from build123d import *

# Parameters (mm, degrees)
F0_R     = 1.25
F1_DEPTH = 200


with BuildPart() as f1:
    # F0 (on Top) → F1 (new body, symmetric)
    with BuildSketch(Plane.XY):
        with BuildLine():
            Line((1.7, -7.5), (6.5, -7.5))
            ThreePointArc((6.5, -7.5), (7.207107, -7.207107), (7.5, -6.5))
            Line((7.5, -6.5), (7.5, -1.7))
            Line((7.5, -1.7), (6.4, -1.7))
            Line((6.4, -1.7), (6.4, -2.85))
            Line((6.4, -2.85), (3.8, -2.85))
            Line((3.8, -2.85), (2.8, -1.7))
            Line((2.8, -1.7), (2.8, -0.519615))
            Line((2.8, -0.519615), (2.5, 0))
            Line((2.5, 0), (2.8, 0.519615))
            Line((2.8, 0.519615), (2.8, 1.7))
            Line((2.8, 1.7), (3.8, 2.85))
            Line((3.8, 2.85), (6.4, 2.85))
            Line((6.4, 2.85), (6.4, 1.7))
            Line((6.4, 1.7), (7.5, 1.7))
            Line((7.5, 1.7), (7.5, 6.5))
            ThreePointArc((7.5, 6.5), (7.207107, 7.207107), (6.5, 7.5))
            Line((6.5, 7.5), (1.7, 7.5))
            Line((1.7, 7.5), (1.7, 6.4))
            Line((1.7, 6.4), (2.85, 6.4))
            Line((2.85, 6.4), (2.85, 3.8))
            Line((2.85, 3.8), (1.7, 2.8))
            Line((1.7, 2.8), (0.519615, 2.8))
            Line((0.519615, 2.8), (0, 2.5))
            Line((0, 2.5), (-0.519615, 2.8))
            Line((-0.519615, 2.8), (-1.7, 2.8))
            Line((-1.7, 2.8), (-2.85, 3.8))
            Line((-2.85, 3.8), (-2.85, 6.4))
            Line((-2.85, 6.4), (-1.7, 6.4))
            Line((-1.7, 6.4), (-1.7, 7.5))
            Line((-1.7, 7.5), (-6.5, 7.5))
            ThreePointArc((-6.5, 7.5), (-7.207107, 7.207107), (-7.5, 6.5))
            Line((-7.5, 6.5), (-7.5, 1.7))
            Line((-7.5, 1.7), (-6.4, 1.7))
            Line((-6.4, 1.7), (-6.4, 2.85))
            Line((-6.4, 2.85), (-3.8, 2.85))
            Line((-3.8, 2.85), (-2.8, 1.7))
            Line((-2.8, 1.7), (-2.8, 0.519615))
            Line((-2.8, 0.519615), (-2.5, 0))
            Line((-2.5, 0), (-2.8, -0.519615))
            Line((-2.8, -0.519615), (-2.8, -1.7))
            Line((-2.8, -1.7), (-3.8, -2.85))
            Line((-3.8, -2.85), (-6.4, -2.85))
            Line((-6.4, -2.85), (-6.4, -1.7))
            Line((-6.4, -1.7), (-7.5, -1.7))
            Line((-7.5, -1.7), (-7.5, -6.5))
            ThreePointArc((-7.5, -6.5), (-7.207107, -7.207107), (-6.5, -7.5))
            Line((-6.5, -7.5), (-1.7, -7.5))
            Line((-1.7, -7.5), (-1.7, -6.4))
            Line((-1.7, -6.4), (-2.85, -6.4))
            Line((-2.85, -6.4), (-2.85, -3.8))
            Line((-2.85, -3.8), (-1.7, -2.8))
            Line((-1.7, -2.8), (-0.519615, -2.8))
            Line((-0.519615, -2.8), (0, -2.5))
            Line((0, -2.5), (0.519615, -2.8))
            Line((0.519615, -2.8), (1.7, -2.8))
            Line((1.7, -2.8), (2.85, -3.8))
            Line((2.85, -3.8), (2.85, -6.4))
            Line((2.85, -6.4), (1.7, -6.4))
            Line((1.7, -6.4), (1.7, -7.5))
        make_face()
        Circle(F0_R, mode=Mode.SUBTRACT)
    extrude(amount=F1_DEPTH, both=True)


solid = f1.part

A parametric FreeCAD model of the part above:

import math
import FreeCAD as App
import Part
import Sketcher

V = App.Vector
Q = App.Units.Quantity

doc = App.newDocument("Part")
params = doc.addObject("Spreadsheet::Sheet", "Params")
for row, (alias, value) in enumerate([
    ("sketch1_radius", "0.999999 mm"),
    ("sketch1_diameter", "2.5 mm"),
    ("sketch1_width", "4.8 mm"),
    ("sketch1_width2", "1.1 mm"),
    ("sketch1_width3", "2.6 mm"),
    ("pad1_length", "400 mm"),
], start=1):
    params.set(f"A{row}", alias)
    params.set(f"B{row}", "=" + value)
    params.setAlias(f"B{row}", alias)

body = doc.addObject("PartDesign::Body", "Body")

# Sketch on XY plane
sketch1 = body.newObject("Sketcher::SketchObject", "Sketch")
sketch1.AttachmentSupport = (doc.getObject("XY_Plane"), [""])
sketch1.MapMode = "FlatFace"
sketch1.addGeometry(Part.LineSegment(V(1.7, -7.5, 0), V(6.5, -7.5, 0)), False)
sketch1.addGeometry(Part.ArcOfCircle(Part.Circle(V(6.5, -6.5, 0), V(0, 0, 1), 1), math.radians(-90), math.radians(0)), False)
sketch1.addGeometry(Part.LineSegment(V(7.5, -6.5, 0), V(7.5, -1.7, 0)), False)
sketch1.addGeometry(Part.LineSegment(V(7.5, -1.7, 0), V(6.4, -1.7, 0)), False)
sketch1.addGeometry(Part.LineSegment(V(6.4, -1.7, 0), V(6.4, -2.9, 0)), False)
sketch1.addGeometry(Part.LineSegment(V(6.4, -2.9, 0), V(3.8, -2.9, 0)), False)
sketch1.addGeometry(Part.LineSegment(V(3.8, -2.9, 0), V(2.8, -1.7, 0)), False)
sketch1.addGeometry(Part.LineSegment(V(2.8, -1.7, 0), V(2.8, -0.5, 0)), False)
sketch1.addGeometry(Part.LineSegment(V(2.8, -0.5, 0), V(2.5, 0, 0)), False)
sketch1.addGeometry(Part.LineSegment(V(2.5, 0, 0), V(2.8, 0.5, 0)), False)
sketch1.addGeometry(Part.LineSegment(V(2.8, 0.5, 0), V(2.8, 1.7, 0)), False)
sketch1.addGeometry(Part.LineSegment(V(2.8, 1.7, 0), V(3.8, 2.9, 0)), False)
sketch1.addGeometry(Part.LineSegment(V(3.8, 2.9, 0), V(6.4, 2.9, 0)), False)
sketch1.addGeometry(Part.LineSegment(V(6.4, 2.9, 0), V(6.4, 1.7, 0)), False)
sketch1.addGeometry(Part.LineSegment(V(6.4, 1.7, 0), V(7.5, 1.7, 0)), False)
sketch1.addGeometry(Part.LineSegment(V(7.5, 1.7, 0), V(7.5, 6.5, 0)), False)
sketch1.addGeometry(Part.ArcOfCircle(Part.Circle(V(6.5, 6.5, 0), V(0, 0, 1), 1), math.radians(0), math.radians(90)), False)
sketch1.addGeometry(Part.LineSegment(V(6.5, 7.5, 0), V(1.7, 7.5, 0)), False)
sketch1.addGeometry(Part.LineSegment(V(1.7, 7.5, 0), V(1.7, 6.4, 0)), False)
sketch1.addGeometry(Part.LineSegment(V(1.7, 6.4, 0), V(2.9, 6.4, 0)), False)
sketch1.addGeometry(Part.LineSegment(V(2.9, 6.4, 0), V(2.9, 3.8, 0)), False)
sketch1.addGeometry(Part.LineSegment(V(2.9, 3.8, 0), V(1.7, 2.8, 0)), False)
sketch1.addGeometry(Part.LineSegment(V(1.7, 2.8, 0), V(0.5, 2.8, 0)), False)
sketch1.addGeometry(Part.LineSegment(V(0.5, 2.8, 0), V(0, 2.5, 0)), False)
sketch1.addGeometry(Part.LineSegment(V(0, 2.5, 0), V(-0.5, 2.8, 0)), False)
sketch1.addGeometry(Part.LineSegment(V(-0.5, 2.8, 0), V(-1.7, 2.8, 0)), False)
sketch1.addGeometry(Part.LineSegment(V(-1.7, 2.8, 0), V(-2.9, 3.8, 0)), False)
sketch1.addGeometry(Part.LineSegment(V(-2.9, 3.8, 0), V(-2.9, 6.4, 0)), False)
sketch1.addGeometry(Part.LineSegment(V(-2.9, 6.4, 0), V(-1.7, 6.4, 0)), False)
sketch1.addGeometry(Part.LineSegment(V(-1.7, 6.4, 0), V(-1.7, 7.5, 0)), False)
sketch1.addGeometry(Part.LineSegment(V(-1.7, 7.5, 0), V(-6.5, 7.5, 0)), False)
sketch1.addGeometry(Part.ArcOfCircle(Part.Circle(V(-6.5, 6.5, 0), V(0, 0, 1), 1), math.radians(90), math.radians(180)), False)
sketch1.addGeometry(Part.LineSegment(V(-7.5, 6.5, 0), V(-7.5, 1.7, 0)), False)
sketch1.addGeometry(Part.LineSegment(V(-7.5, 1.7, 0), V(-6.4, 1.7, 0)), False)
sketch1.addGeometry(Part.LineSegment(V(-6.4, 1.7, 0), V(-6.4, 2.9, 0)), False)
sketch1.addGeometry(Part.LineSegment(V(-6.4, 2.9, 0), V(-3.8, 2.9, 0)), False)
sketch1.addGeometry(Part.LineSegment(V(-3.8, 2.9, 0), V(-2.8, 1.7, 0)), False)
sketch1.addGeometry(Part.LineSegment(V(-2.8, 1.7, 0), V(-2.8, 0.5, 0)), False)
sketch1.addGeometry(Part.LineSegment(V(-2.8, 0.5, 0), V(-2.5, 0, 0)), False)
sketch1.addGeometry(Part.LineSegment(V(-2.5, 0, 0), V(-2.8, -0.5, 0)), False)
sketch1.addGeometry(Part.LineSegment(V(-2.8, -0.5, 0), V(-2.8, -1.7, 0)), False)
sketch1.addGeometry(Part.LineSegment(V(-2.8, -1.7, 0), V(-3.8, -2.9, 0)), False)
sketch1.addGeometry(Part.LineSegment(V(-3.8, -2.9, 0), V(-6.4, -2.9, 0)), False)
sketch1.addGeometry(Part.LineSegment(V(-6.4, -2.9, 0), V(-6.4, -1.7, 0)), False)
sketch1.addGeometry(Part.LineSegment(V(-6.4, -1.7, 0), V(-7.5, -1.7, 0)), False)
sketch1.addGeometry(Part.LineSegment(V(-7.5, -1.7, 0), V(-7.5, -6.5, 0)), False)
sketch1.addGeometry(Part.ArcOfCircle(Part.Circle(V(-6.5, -6.5, 0), V(0, 0, 1), 1), math.radians(180), math.radians(270)), False)
sketch1.addGeometry(Part.LineSegment(V(-6.5, -7.5, 0), V(-1.7, -7.5, 0)), False)
sketch1.addGeometry(Part.LineSegment(V(-1.7, -7.5, 0), V(-1.7, -6.4, 0)), False)
sketch1.addGeometry(Part.LineSegment(V(-1.7, -6.4, 0), V(-2.9, -6.4, 0)), False)
sketch1.addGeometry(Part.LineSegment(V(-2.9, -6.4, 0), V(-2.9, -3.8, 0)), False)
sketch1.addGeometry(Part.LineSegment(V(-2.9, -3.8, 0), V(-1.7, -2.8, 0)), False)
sketch1.addGeometry(Part.LineSegment(V(-1.7, -2.8, 0), V(-0.5, -2.8, 0)), False)
sketch1.addGeometry(Part.LineSegment(V(-0.5, -2.8, 0), V(0, -2.5, 0)), False)
sketch1.addGeometry(Part.LineSegment(V(0, -2.5, 0), V(0.5, -2.8, 0)), False)
sketch1.addGeometry(Part.LineSegment(V(0.5, -2.8, 0), V(1.7, -2.8, 0)), False)
sketch1.addGeometry(Part.LineSegment(V(1.7, -2.8, 0), V(2.9, -3.8, 0)), False)
sketch1.addGeometry(Part.LineSegment(V(2.9, -3.8, 0), V(2.9, -6.4, 0)), False)
sketch1.addGeometry(Part.LineSegment(V(2.9, -6.4, 0), V(1.7, -6.4, 0)), False)
sketch1.addGeometry(Part.LineSegment(V(1.7, -6.4, 0), V(1.7, -7.5, 0)), False)
sketch1.addGeometry(Part.Circle(V(0, 0, 0), V(0, 0, 1), 1.2), False)
sketch1.addConstraint(Sketcher.Constraint("Tangent", 0, 2, 1, 1))
sketch1.addConstraint(Sketcher.Constraint("Tangent", 1, 2, 2, 1))
sketch1.addConstraint(Sketcher.Constraint("Coincident", 2, 2, 3, 1))
sketch1.addConstraint(Sketcher.Constraint("Coincident", 3, 2, 4, 1))
sketch1.addConstraint(Sketcher.Constraint("Coincident", 4, 2, 5, 1))
sketch1.addConstraint(Sketcher.Constraint("Coincident", 5, 2, 6, 1))
sketch1.addConstraint(Sketcher.Constraint("Coincident", 6, 2, 7, 1))
sketch1.addConstraint(Sketcher.Constraint("Coincident", 7, 2, 8, 1))
sketch1.addConstraint(Sketcher.Constraint("Coincident", 8, 2, 9, 1))
sketch1.addConstraint(Sketcher.Constraint("Coincident", 9, 2, 10, 1))
sketch1.addConstraint(Sketcher.Constraint("Coincident", 10, 2, 11, 1))
sketch1.addConstraint(Sketcher.Constraint("Coincident", 11, 2, 12, 1))
sketch1.addConstraint(Sketcher.Constraint("Coincident", 12, 2, 13, 1))
sketch1.addConstraint(Sketcher.Constraint("Coincident", 13, 2, 14, 1))
sketch1.addConstraint(Sketcher.Constraint("Coincident", 14, 2, 15, 1))
sketch1.addConstraint(Sketcher.Constraint("Tangent", 15, 2, 16, 1))
sketch1.addConstraint(Sketcher.Constraint("Tangent", 16, 2, 17, 1))
sketch1.addConstraint(Sketcher.Constraint("Coincident", 17, 2, 18, 1))
sketch1.addConstraint(Sketcher.Constraint("Coincident", 18, 2, 19, 1))
sketch1.addConstraint(Sketcher.Constraint("Coincident", 19, 2, 20, 1))
sketch1.addConstraint(Sketcher.Constraint("Coincident", 20, 2, 21, 1))
sketch1.addConstraint(Sketcher.Constraint("Coincident", 21, 2, 22, 1))
sketch1.addConstraint(Sketcher.Constraint("Coincident", 22, 2, 23, 1))
sketch1.addConstraint(Sketcher.Constraint("Coincident", 23, 2, 24, 1))
sketch1.addConstraint(Sketcher.Constraint("Coincident", 24, 2, 25, 1))
sketch1.addConstraint(Sketcher.Constraint("Coincident", 25, 2, 26, 1))
sketch1.addConstraint(Sketcher.Constraint("Coincident", 26, 2, 27, 1))
sketch1.addConstraint(Sketcher.Constraint("Coincident", 27, 2, 28, 1))
sketch1.addConstraint(Sketcher.Constraint("Coincident", 28, 2, 29, 1))
sketch1.addConstraint(Sketcher.Constraint("Coincident", 29, 2, 30, 1))
sketch1.addConstraint(Sketcher.Constraint("Tangent", 30, 2, 31, 1))
sketch1.addConstraint(Sketcher.Constraint("Tangent", 31, 2, 32, 1))
sketch1.addConstraint(Sketcher.Constraint("Coincident", 32, 2, 33, 1))
sketch1.addConstraint(Sketcher.Constraint("Coincident", 33, 2, 34, 1))
sketch1.addConstraint(Sketcher.Constraint("Coincident", 34, 2, 35, 1))
sketch1.addConstraint(Sketcher.Constraint("Coincident", 35, 2, 36, 1))
sketch1.addConstraint(Sketcher.Constraint("Coincident", 36, 2, 37, 1))
sketch1.addConstraint(Sketcher.Constraint("Coincident", 37, 2, 38, 1))
sketch1.addConstraint(Sketcher.Constraint("Coincident", 38, 2, 39, 1))
sketch1.addConstraint(Sketcher.Constraint("Coincident", 39, 2, 40, 1))
sketch1.addConstraint(Sketcher.Constraint("Coincident", 40, 2, 41, 1))
sketch1.addConstraint(Sketcher.Constraint("Coincident", 41, 2, 42, 1))
sketch1.addConstraint(Sketcher.Constraint("Coincident", 42, 2, 43, 1))
sketch1.addConstraint(Sketcher.Constraint("Coincident", 43, 2, 44, 1))
sketch1.addConstraint(Sketcher.Constraint("Coincident", 44, 2, 45, 1))
sketch1.addConstraint(Sketcher.Constraint("Tangent", 45, 2, 46, 1))
sketch1.addConstraint(Sketcher.Constraint("Tangent", 46, 2, 47, 1))
sketch1.addConstraint(Sketcher.Constraint("Coincident", 47, 2, 48, 1))
sketch1.addConstraint(Sketcher.Constraint("Coincident", 48, 2, 49, 1))
sketch1.addConstraint(Sketcher.Constraint("Coincident", 49, 2, 50, 1))
sketch1.addConstraint(Sketcher.Constraint("Coincident", 50, 2, 51, 1))
sketch1.addConstraint(Sketcher.Constraint("Coincident", 51, 2, 52, 1))
sketch1.addConstraint(Sketcher.Constraint("Coincident", 52, 2, 53, 1))
sketch1.addConstraint(Sketcher.Constraint("Coincident", 53, 2, 54, 1))
sketch1.addConstraint(Sketcher.Constraint("Coincident", 54, 2, 55, 1))
sketch1.addConstraint(Sketcher.Constraint("Coincident", 55, 2, 56, 1))
sketch1.addConstraint(Sketcher.Constraint("Coincident", 56, 2, 57, 1))
sketch1.addConstraint(Sketcher.Constraint("Coincident", 57, 2, 58, 1))
sketch1.addConstraint(Sketcher.Constraint("Coincident", 58, 2, 59, 1))
sketch1.addConstraint(Sketcher.Constraint("Coincident", 59, 2, 0, 1))
sketch1.addConstraint(Sketcher.Constraint("Horizontal", 0))
sketch1.addConstraint(Sketcher.Constraint("Vertical", 2))
sketch1.addConstraint(Sketcher.Constraint("Horizontal", 3))
sketch1.addConstraint(Sketcher.Constraint("Vertical", 4))
sketch1.addConstraint(Sketcher.Constraint("Horizontal", 5))
sketch1.addConstraint(Sketcher.Constraint("Vertical", 7))
sketch1.addConstraint(Sketcher.Constraint("Vertical", 10))
sketch1.addConstraint(Sketcher.Constraint("Horizontal", 12))
sketch1.addConstraint(Sketcher.Constraint("Vertical", 13))
sketch1.addConstraint(Sketcher.Constraint("Horizontal", 14))
sketch1.addConstraint(Sketcher.Constraint("Vertical", 15))
sketch1.addConstraint(Sketcher.Constraint("Horizontal", 17))
sketch1.addConstraint(Sketcher.Constraint("Vertical", 18))
sketch1.addConstraint(Sketcher.Constraint("Horizontal", 19))
sketch1.addConstraint(Sketcher.Constraint("Vertical", 20))
sketch1.addConstraint(Sketcher.Constraint("Horizontal", 22))
sketch1.addConstraint(Sketcher.Constraint("Horizontal", 25))
sketch1.addConstraint(Sketcher.Constraint("Vertical", 27))
sketch1.addConstraint(Sketcher.Constraint("Horizontal", 28))
sketch1.addConstraint(Sketcher.Constraint("Vertical", 29))
sketch1.addConstraint(Sketcher.Constraint("Horizontal", 30))
sketch1.addConstraint(Sketcher.Constraint("Vertical", 32))
sketch1.addConstraint(Sketcher.Constraint("Horizontal", 33))
sketch1.addConstraint(Sketcher.Constraint("Vertical", 34))
sketch1.addConstraint(Sketcher.Constraint("Horizontal", 35))
sketch1.addConstraint(Sketcher.Constraint("Vertical", 37))
sketch1.addConstraint(Sketcher.Constraint("Vertical", 40))
sketch1.addConstraint(Sketcher.Constraint("Horizontal", 42))
sketch1.addConstraint(Sketcher.Constraint("Vertical", 43))
sketch1.addConstraint(Sketcher.Constraint("Horizontal", 44))
sketch1.addConstraint(Sketcher.Constraint("Vertical", 45))
sketch1.addConstraint(Sketcher.Constraint("Horizontal", 47))
sketch1.addConstraint(Sketcher.Constraint("Vertical", 48))
sketch1.addConstraint(Sketcher.Constraint("Horizontal", 49))
sketch1.addConstraint(Sketcher.Constraint("Vertical", 50))
sketch1.addConstraint(Sketcher.Constraint("Horizontal", 52))
sketch1.addConstraint(Sketcher.Constraint("Horizontal", 55))
sketch1.addConstraint(Sketcher.Constraint("Vertical", 57))
sketch1.addConstraint(Sketcher.Constraint("Horizontal", 58))
sketch1.addConstraint(Sketcher.Constraint("Vertical", 59))
sketch1.addConstraint(Sketcher.Constraint("Coincident", 60, 3, -1, 1))
sketch1.addConstraint(Sketcher.Constraint("Equal", 1, 16))
sketch1.addConstraint(Sketcher.Constraint("Equal", 16, 31))
sketch1.addConstraint(Sketcher.Constraint("Equal", 31, 46))
sketch1.addConstraint(Sketcher.Constraint("Symmetric", 1, 3, 31, 3, -1, 1))
sketch1.addConstraint(Sketcher.Constraint("Symmetric", 16, 3, 46, 3, -1, 1))
sketch1.addConstraint(Sketcher.Constraint("Symmetric", 3, 2, 33, 2, -1, 1))
sketch1.addConstraint(Sketcher.Constraint("Symmetric", 5, 2, 35, 2, -1, 1))
sketch1.addConstraint(Sketcher.Constraint("Symmetric", 6, 2, 36, 2, -1, 1))
sketch1.addConstraint(Sketcher.Constraint("Symmetric", 8, 2, 38, 2, -1, 1))
sketch1.addConstraint(Sketcher.Constraint("Symmetric", 9, 2, 39, 2, -1, 1))
sketch1.addConstraint(Sketcher.Constraint("Symmetric", 11, 2, 41, 2, -1, 1))
sketch1.addConstraint(Sketcher.Constraint("Symmetric", 13, 2, 43, 2, -1, 1))
sketch1.addConstraint(Sketcher.Constraint("Symmetric", 18, 2, 48, 2, -1, 1))
sketch1.addConstraint(Sketcher.Constraint("Symmetric", 20, 2, 50, 2, -1, 1))
sketch1.addConstraint(Sketcher.Constraint("Symmetric", 21, 2, 51, 2, -1, 1))
sketch1.addConstraint(Sketcher.Constraint("Symmetric", 23, 2, 53, 2, -1, 1))
sketch1.addConstraint(Sketcher.Constraint("Symmetric", 24, 2, 54, 2, -1, 1))
sketch1.addConstraint(Sketcher.Constraint("Symmetric", 26, 2, 56, 2, -1, 1))
sketch1.addConstraint(Sketcher.Constraint("Symmetric", 28, 2, 58, 2, -1, 1))
sketch1.addConstraint(Sketcher.Constraint("Symmetric", 16, 3, 31, 3, -2))
sketch1.addConstraint(Sketcher.Constraint("Symmetric", 22, 2, 24, 2, -2))
sketch1.addConstraint(Sketcher.Constraint("Symmetric", 20, 2, 26, 2, -2))
sketch1.addConstraint(Sketcher.Constraint("Symmetric", 18, 2, 28, 2, -2))
sketch1.addConstraint(Sketcher.Constraint("Symmetric", 13, 2, 33, 2, -2))
sketch1.addConstraint(Sketcher.Constraint("Symmetric", 11, 2, 35, 2, -2))
sketch1.addConstraint(Sketcher.Constraint("Symmetric", 10, 2, 36, 2, -2))
sketch1.addConstraint(Sketcher.Constraint("PointOnObject", 8, 2, -1))
sketch1.addConstraint(Sketcher.Constraint("PointOnObject", 23, 2, -2))
sketch1.addConstraint(Sketcher.Constraint("Perpendicular", 6, 21))
sketch1.addConstraint(Sketcher.Constraint("Perpendicular", 8, 23))
sketch1.addConstraint(Sketcher.Constraint("Perpendicular", 9, 24))
sketch1.addConstraint(Sketcher.Constraint("Perpendicular", 11, 26))
sketch1.addConstraint(Sketcher.Constraint("Perpendicular", 23, 38))
sketch1.addConstraint(Sketcher.Constraint("Perpendicular", 26, 41))
sketch1.addConstraint(Sketcher.Constraint("Perpendicular", 38, 53))
sketch1.addConstraint(Sketcher.Constraint("Perpendicular", 41, 56))
sketch1.addConstraint(Sketcher.Constraint("Horizontal", 3, 2, 6, 2))
sketch1.addConstraint(Sketcher.Constraint("Vertical", 18, 2, 21, 2))
sketch1.addConstraint(Sketcher.Constraint("Equal", 47, 2))
sketch1.addConstraint(Sketcher.Constraint("Equal", 58, 4))
sketch1.addConstraint(Sketcher.Constraint("Equal", 55, 7))
sketch1.addConstraint(Sketcher.Constraint("Equal", 44, 18))
sketch1.addConstraint(Sketcher.Constraint("Equal", 42, 20))
sketch1.addConstraint(Sketcher.Constraint("Equal", 9, 23))
sketch1.addConstraint(Sketcher.Constraint("Radius", 1, Q("0.999999 mm")))
sketch1.addConstraint(Sketcher.Constraint("Diameter", 60, Q("2.5 mm")))
sketch1.addConstraint(Sketcher.Constraint("Angle", 8, Q("120.000012 deg")))
sketch1.addConstraint(Sketcher.Constraint("DistanceX", 0, 1, 0, 2, Q("4.8 mm")))
sketch1.addConstraint(Sketcher.Constraint("DistanceX", 3, 2, 3, 1, Q("1.1 mm")))
sketch1.addConstraint(Sketcher.Constraint("DistanceX", 5, 2, 5, 1, Q("2.6 mm")))
sketch1.addConstraint(Sketcher.Constraint("Distance", 8, Q("0.6 mm")))
sketch1.addConstraint(Sketcher.Constraint("DistanceX", 19, 1, 19, 2, Q("1.15 mm")))
sketch1.addConstraint(Sketcher.Constraint("DistanceX", -1, 1, 1, 3, Q("6.500001 mm")))
sketch1.addConstraint(Sketcher.Constraint("DistanceX", -1, 1, 6, 2, Q("2.8 mm")))
sketch1.setExpression("Constraints[145]", "Params.sketch1_radius")
sketch1.setExpression("Constraints[146]", "Params.sketch1_diameter")
sketch1.setExpression("Constraints[148]", "Params.sketch1_width")
sketch1.setExpression("Constraints[149]", "Params.sketch1_width2")
sketch1.setExpression("Constraints[150]", "Params.sketch1_width3")
pad1 = body.newObject("PartDesign::Pad", "Pad")
pad1.Profile = sketch1
pad1.setExpression("Length", "Params.pad1_length")
pad1.Midplane = True

doc.recompute()
